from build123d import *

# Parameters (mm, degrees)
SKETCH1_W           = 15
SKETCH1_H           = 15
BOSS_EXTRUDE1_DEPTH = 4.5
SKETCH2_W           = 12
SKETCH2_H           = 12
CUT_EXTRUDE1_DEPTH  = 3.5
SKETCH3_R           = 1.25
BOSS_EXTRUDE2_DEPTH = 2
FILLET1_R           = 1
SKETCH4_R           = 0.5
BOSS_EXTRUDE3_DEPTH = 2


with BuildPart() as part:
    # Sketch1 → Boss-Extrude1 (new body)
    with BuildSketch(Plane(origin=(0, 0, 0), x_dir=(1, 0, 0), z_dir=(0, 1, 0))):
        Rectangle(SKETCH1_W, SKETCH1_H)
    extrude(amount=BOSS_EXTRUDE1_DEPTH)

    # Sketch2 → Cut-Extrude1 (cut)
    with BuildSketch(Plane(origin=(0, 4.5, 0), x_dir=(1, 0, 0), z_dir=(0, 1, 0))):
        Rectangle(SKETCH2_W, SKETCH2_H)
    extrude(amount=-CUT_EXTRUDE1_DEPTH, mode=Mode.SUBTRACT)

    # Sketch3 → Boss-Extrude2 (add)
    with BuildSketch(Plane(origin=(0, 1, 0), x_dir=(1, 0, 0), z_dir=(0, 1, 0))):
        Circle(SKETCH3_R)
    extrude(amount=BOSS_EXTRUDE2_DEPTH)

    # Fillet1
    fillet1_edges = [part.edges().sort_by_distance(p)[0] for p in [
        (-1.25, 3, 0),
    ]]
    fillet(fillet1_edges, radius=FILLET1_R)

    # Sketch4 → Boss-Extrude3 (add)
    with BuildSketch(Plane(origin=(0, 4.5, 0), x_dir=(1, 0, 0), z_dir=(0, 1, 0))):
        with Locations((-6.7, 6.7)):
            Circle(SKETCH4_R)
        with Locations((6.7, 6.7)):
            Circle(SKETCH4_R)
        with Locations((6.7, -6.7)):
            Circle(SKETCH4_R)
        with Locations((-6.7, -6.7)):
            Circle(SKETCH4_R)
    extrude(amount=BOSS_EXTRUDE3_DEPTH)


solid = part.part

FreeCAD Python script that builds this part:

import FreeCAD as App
import Part
import Sketcher
from FreeCAD import Vector
Q = App.Units.Quantity


def edges_at(feature, points):
    """Names of the edges that pass closest to the given points."""
    edges = feature.Shape.Edges
    near = lambda p: min(range(len(edges)), key=lambda i: edges[i].distToShape(Part.Vertex(*p))[0])
    return sorted({f"Edge{near(p) + 1}" for p in points})


def add_polygon(sketch, points):
    """Adds a closed chain of lines whose ends are joined by coincident constraints."""
    first, n = sketch.GeometryCount, len(points)
    for a, b in zip(points, points[1:] + points[:1]):
        sketch.addGeometry(Part.LineSegment(App.Vector(*a, 0), App.Vector(*b, 0)), False)
    for i in range(n):
        sketch.addConstraint(Sketcher.Constraint("Coincident", first + i, 2, first + (i + 1) % n, 1))

doc = App.newDocument("Part")
body = doc.addObject("PartDesign::Body", "Body")

sketch1 = body.newObject("Sketcher::SketchObject", "Sketch")
sketch1.AttachmentSupport = (doc.getObject("XZ_Plane"), [""])
sketch1.MapMode = "FlatFace"
add_polygon(sketch1, [(-8, -8), (-8, 8), (8, 8), (8, -8)])
sketch1.addConstraint(Sketcher.Constraint("Vertical", 0))
sketch1.addConstraint(Sketcher.Constraint("Horizontal", 1))
sketch1.addConstraint(Sketcher.Constraint("Vertical", 2))
sketch1.addConstraint(Sketcher.Constraint("Horizontal", 3))
sketch1.addConstraint(Sketcher.Constraint("Symmetric", 0, 2, 2, 2, -1, 1))
sketch1.addConstraint(Sketcher.Constraint("Equal", 3, 0))
sketch1.addConstraint(Sketcher.Constraint("DistanceX", 1, 1, 1, 2, Q("15 mm")))
pad1 = body.newObject("PartDesign::Pad", "Pad")
pad1.Profile = sketch1
pad1.Length = 4.5
pad1.Reversed = True

sketch2 = body.newObject("Sketcher::SketchObject", "Sketch001")
sketch2.AttachmentSupport = (doc.getObject("XZ_Plane"), [""])
sketch2.MapMode = "FlatFace"
sketch2.AttachmentOffset = App.Placement(Vector(0, 0, -4.5), App.Rotation())
add_polygon(sketch2, [(-6, -6), (-6, 6), (6, 6), (6, -6)])
sketch2.addConstraint(Sketcher.Constraint("Vertical", 0))
sketch2.addConstraint(Sketcher.Constraint("Horizontal", 1))
sketch2.addConstraint(Sketcher.Constraint("Vertical", 2))
sketch2.addConstraint(Sketcher.Constraint("Horizontal", 3))
sketch2.addConstraint(Sketcher.Constraint("Symmetric", 0, 2, 2, 2, -1, 1))
sketch2.addConstraint(Sketcher.Constraint("Equal", 3, 0))
sketch2.addConstraint(Sketcher.Constraint("DistanceX", 1, 1, 1, 2, Q("12 mm")))
pocket1 = body.newObject("PartDesign::Pocket", "Pocket")
pocket1.Profile = sketch2
pocket1.Length = 3.5
pocket1.Reversed = True

sketch3 = body.newObject("Sketcher::SketchObject", "Sketch002")
sketch3.AttachmentSupport = (doc.getObject("XZ_Plane"), [""])
sketch3.MapMode = "FlatFace"
sketch3.AttachmentOffset = App.Placement(Vector(0, 0, -1), App.Rotation())
sketch3.addGeometry(Part.Circle(Vector(0, 0, 0), Vector(0, 0, 1), 1.2), False)
sketch3.addConstraint(Sketcher.Constraint("Coincident", 0, 3, -1, 1))
sketch3.addConstraint(Sketcher.Constraint("Diameter", 0, Q("2.5 mm")))
pad2 = body.newObject("PartDesign::Pad", "Pad001")
pad2.Profile = sketch3
pad2.Length = 2
pad2.Reversed = True
doc.recompute()

fillet = body.newObject("PartDesign::Fillet", "Fillet")
fillet.Base = (pad2, edges_at(pad2, [(-1.25, 3, 0)]))
fillet.Radius = 1

sketch4 = body.newObject("Sketcher::SketchObject", "Sketch003")
sketch4.AttachmentSupport = (doc.getObject("XZ_Plane"), [""])
sketch4.MapMode = "FlatFace"
sketch4.AttachmentOffset = App.Placement(Vector(0, 0, -4.5), App.Rotation())
sketch4.addGeometry(Part.Circle(Vector(-6.7, -6.7, 0), Vector(0, 0, 1), 0.5), False)
sketch4.addGeometry(Part.Circle(Vector(6.7, -6.7, 0), Vector(0, 0, 1), 0.5), False)
sketch4.addGeometry(Part.Circle(Vector(6.7, 6.7, 0), Vector(0, 0, 1), 0.5), False)
sketch4.addGeometry(Part.Circle(Vector(-6.7, 6.7, 0), Vector(0, 0, 1), 0.5), False)
sketch4.addConstraint(Sketcher.Constraint("Equal", 0, 1))
sketch4.addConstraint(Sketcher.Constraint("Equal", 1, 2))
sketch4.addConstraint(Sketcher.Constraint("Equal", 2, 3))
sketch4.addConstraint(Sketcher.Constraint("Symmetric", 0, 3, 2, 3, -1, 1))
sketch4.addConstraint(Sketcher.Constraint("Symmetric", 1, 3, 3, 3, -1, 1))
sketch4.addConstraint(Sketcher.Constraint("Symmetric", 0, 3, 1, 3, -2))
sketch4.addConstraint(Sketcher.Constraint("Diameter", 0, Q("1 mm")))
sketch4.addConstraint(Sketcher.Constraint("DistanceX", 0, 3, -1, 1, Q("6.7 mm")))
sketch4.addConstraint(Sketcher.Constraint("DistanceY", 0, 3, -1, 1, Q("6.7 mm")))
pad3 = body.newObject("PartDesign::Pad", "Pad002")
pad3.Profile = sketch4
pad3.Length = 2
pad3.Reversed = True

doc.recompute()
